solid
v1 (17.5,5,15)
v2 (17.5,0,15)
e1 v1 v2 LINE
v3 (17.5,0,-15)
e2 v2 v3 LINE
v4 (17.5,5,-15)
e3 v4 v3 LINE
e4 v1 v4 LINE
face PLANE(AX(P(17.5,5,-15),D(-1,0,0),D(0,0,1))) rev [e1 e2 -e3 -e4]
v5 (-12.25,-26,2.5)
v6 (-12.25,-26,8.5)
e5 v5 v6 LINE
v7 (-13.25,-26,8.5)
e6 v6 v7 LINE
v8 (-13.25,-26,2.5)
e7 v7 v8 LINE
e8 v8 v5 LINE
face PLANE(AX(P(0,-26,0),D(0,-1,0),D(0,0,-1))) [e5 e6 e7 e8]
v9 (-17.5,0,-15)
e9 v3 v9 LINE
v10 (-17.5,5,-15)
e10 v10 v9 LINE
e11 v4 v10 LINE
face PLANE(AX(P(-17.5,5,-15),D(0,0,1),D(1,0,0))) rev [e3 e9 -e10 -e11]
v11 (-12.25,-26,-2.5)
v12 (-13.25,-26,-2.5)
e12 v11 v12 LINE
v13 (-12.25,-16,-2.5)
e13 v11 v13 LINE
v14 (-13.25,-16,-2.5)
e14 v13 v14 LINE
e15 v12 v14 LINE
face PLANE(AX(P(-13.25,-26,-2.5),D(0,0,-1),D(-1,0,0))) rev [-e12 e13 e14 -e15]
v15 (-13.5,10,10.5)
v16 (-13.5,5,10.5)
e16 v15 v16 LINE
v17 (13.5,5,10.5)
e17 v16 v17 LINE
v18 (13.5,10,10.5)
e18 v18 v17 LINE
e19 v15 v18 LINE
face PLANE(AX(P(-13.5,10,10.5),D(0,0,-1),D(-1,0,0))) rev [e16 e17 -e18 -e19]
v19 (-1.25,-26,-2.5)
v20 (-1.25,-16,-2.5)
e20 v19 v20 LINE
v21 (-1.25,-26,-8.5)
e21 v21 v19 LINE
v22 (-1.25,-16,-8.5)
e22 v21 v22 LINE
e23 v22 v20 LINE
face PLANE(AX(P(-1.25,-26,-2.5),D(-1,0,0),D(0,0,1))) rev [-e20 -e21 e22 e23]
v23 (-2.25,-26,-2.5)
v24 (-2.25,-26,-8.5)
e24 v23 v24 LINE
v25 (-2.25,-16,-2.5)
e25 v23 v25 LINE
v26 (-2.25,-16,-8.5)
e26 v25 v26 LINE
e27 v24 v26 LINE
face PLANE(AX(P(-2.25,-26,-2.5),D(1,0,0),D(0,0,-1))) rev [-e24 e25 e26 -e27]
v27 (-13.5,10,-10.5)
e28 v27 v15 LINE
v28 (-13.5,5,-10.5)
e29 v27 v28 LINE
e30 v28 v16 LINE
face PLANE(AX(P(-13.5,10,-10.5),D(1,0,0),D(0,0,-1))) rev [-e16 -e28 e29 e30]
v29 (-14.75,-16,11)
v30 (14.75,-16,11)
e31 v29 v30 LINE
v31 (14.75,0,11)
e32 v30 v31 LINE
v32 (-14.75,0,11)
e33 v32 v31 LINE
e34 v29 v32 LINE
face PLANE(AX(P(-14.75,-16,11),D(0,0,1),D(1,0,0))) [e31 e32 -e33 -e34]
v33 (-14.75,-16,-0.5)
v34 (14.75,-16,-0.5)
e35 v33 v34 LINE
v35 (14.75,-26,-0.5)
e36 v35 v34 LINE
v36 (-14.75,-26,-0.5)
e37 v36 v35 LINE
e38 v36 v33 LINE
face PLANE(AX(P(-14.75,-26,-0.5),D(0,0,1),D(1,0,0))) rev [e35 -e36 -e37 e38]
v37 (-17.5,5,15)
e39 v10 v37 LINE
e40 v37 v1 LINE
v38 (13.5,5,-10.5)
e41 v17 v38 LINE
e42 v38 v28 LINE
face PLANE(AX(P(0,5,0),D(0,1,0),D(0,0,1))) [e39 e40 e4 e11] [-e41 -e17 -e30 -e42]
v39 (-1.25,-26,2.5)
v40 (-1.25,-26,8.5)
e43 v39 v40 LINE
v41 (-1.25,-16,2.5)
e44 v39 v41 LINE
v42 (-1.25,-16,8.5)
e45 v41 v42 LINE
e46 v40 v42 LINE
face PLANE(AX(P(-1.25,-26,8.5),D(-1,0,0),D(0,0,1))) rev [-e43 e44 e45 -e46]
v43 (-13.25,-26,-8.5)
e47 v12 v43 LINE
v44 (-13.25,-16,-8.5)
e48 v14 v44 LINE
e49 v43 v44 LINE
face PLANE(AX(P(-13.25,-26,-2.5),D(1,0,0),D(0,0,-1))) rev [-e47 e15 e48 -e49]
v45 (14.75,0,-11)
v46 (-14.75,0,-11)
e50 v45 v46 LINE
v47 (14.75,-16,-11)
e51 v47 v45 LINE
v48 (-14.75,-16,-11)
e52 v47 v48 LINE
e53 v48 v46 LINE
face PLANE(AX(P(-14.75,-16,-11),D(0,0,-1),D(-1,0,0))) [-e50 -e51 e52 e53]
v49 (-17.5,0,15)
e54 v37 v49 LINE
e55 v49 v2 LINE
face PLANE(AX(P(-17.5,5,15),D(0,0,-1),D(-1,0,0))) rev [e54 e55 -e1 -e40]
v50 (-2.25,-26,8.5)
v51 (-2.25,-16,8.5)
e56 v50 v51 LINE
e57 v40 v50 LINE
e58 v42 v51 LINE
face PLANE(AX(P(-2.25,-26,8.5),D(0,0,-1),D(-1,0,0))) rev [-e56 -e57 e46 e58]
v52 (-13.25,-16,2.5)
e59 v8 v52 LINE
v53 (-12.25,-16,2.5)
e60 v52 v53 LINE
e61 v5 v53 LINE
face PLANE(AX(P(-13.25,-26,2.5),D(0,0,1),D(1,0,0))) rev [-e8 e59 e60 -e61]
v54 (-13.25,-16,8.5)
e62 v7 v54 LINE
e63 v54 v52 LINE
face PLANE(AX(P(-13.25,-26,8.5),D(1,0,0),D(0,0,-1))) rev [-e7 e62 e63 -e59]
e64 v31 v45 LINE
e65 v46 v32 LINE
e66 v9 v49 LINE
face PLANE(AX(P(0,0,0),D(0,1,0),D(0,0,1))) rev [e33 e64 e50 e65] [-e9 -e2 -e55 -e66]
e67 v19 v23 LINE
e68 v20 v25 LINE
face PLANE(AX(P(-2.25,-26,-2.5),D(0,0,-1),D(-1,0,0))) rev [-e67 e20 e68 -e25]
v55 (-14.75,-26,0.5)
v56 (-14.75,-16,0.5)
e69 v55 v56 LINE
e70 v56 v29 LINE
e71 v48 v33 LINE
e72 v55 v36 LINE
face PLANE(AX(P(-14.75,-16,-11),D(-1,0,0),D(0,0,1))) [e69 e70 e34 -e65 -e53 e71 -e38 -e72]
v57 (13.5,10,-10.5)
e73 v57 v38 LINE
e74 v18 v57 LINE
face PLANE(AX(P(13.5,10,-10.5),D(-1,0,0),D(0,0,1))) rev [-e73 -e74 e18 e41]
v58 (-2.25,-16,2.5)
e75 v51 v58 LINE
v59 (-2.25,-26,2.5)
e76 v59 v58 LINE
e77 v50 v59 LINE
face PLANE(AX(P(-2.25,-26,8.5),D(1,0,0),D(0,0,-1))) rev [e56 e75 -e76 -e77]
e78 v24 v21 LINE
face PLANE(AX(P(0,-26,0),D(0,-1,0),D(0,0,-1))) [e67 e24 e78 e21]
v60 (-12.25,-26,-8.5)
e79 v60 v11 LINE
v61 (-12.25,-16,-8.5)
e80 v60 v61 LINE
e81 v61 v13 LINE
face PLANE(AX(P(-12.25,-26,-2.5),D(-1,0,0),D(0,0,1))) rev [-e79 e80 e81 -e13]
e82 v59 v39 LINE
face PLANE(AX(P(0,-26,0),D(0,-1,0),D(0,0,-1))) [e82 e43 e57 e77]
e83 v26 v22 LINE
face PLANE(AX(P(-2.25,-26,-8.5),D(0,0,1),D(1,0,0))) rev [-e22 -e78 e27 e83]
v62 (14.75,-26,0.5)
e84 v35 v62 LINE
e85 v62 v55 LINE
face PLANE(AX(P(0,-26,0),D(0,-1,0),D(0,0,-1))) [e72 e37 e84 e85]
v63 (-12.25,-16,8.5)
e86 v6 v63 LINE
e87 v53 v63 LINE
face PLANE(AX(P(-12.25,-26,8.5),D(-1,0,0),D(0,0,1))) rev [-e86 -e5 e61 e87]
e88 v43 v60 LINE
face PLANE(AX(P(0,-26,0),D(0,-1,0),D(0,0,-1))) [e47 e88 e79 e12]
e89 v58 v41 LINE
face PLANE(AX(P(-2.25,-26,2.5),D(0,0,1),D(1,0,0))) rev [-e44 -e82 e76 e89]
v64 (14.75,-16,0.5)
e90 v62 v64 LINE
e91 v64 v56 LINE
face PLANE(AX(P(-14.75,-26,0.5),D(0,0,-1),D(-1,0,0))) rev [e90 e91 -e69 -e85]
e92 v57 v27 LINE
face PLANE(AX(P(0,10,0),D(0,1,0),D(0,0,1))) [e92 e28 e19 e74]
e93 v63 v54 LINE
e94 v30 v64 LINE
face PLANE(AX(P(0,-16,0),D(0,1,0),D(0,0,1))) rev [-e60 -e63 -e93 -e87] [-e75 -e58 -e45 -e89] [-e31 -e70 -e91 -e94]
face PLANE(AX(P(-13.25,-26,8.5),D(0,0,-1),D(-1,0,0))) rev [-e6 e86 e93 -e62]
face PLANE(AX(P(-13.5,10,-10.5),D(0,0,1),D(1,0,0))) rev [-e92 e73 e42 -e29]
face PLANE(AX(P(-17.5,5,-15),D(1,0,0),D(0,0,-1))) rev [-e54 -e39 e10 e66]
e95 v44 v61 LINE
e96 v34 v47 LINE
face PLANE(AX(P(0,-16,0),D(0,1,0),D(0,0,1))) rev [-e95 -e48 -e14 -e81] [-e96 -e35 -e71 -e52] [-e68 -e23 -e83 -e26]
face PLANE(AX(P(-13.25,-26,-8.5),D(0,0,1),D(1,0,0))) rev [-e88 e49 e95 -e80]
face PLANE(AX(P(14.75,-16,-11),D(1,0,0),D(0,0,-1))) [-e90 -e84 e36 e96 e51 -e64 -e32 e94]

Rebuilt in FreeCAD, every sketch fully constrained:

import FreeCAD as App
import Part
import Sketcher

V = App.Vector


def add_polygon(sketch, points):
    """Adds a closed chain of lines whose ends are joined by coincident constraints."""
    first, n = sketch.GeometryCount, len(points)
    for a, b in zip(points, points[1:] + points[:1]):
        sketch.addGeometry(Part.LineSegment(App.Vector(*a, 0), App.Vector(*b, 0)), False)
    for i in range(n):
        sketch.addConstraint(Sketcher.Constraint("Coincident", first + i, 2, first + (i + 1) % n, 1))

doc = App.newDocument("Part")
params = doc.addObject("Spreadsheet::Sheet", "Params")
for row, (alias, value) in enumerate([
    ("sketch1_height", "22 mm"),
    ("sketch1_width", "29.5 mm"),
    ("pad1_length", "16 mm"),
    ("sketch2_width", "35 mm"),
    ("sketch2_height", "30 mm"),
    ("pad2_length", "5 mm"),
    ("sketch3_width", "27 mm"),
    ("sketch3_height", "21 mm"),
    ("pad3_length", "5 mm"),
    ("sketch4_width", "1 mm"),
    ("sketch4_height", "6 mm"),
    ("sketch4_width2", "29.5 mm"),
    ("pad4_length", "10 mm"),
], start=1):
    params.set(f"A{row}", alias)
    params.set(f"B{row}", "=" + value)
    params.setAlias(f"B{row}", alias)

body = doc.addObject("PartDesign::Body", "Body")

sketch1 = body.newObject("Sketcher::SketchObject", "Sketch")
sketch1.AttachmentSupport = (doc.getObject("XZ_Plane"), [""])
sketch1.MapMode = "FlatFace"
add_polygon(sketch1, [(-14.75, -11), (-14.75, 11), (14.75, 11), (14.75, -11)])
sketch1.addConstraint([
    Sketcher.Constraint("Vertical", 0),
    Sketcher.Constraint("Horizontal", 1),
    Sketcher.Constraint("Vertical", 2),
    Sketcher.Constraint("Horizontal", 3),
    Sketcher.Constraint("Symmetric", 0, 2, 2, 2, -1, 1),
    Sketcher.Constraint("DistanceY", 0, 1, 0, 2, 22.0),
    Sketcher.Constraint("DistanceX", 1, 1, 1, 2, 29.5),
])
sketch1.setExpression("Constraints[9]", "Params.sketch1_height")
sketch1.setExpression("Constraints[10]", "Params.sketch1_width")
pad1 = body.newObject("PartDesign::Pad", "Pad")
pad1.Profile = sketch1
pad1.setExpression("Length", "Params.pad1_length")

sketch2 = body.newObject("Sketcher::SketchObject", "Sketch001")
sketch2.AttachmentSupport = (doc.getObject("XZ_Plane"), [""])
sketch2.MapMode = "FlatFace"
add_polygon(sketch2, [(-17.5, -15), (-17.5, 15), (17.5, 15), (17.5, -15)])
sketch2.addConstraint([
    Sketcher.Constraint("Vertical", 0),
    Sketcher.Constraint("Horizontal", 1),
    Sketcher.Constraint("Vertical", 2),
    Sketcher.Constraint("Horizontal", 3),
    Sketcher.Constraint("Symmetric", 0, 2, 2, 2, -1, 1),
    Sketcher.Constraint("DistanceX", 1, 1, 1, 2, 35.0),
    Sketcher.Constraint("DistanceY", 0, 1, 0, 2, 30.0),
])
sketch2.setExpression("Constraints[9]", "Params.sketch2_width")
sketch2.setExpression("Constraints[10]", "Params.sketch2_height")
pad2 = body.newObject("PartDesign::Pad", "Pad001")
pad2.Profile = sketch2
pad2.setExpression("Length", "Params.pad2_length")
pad2.Reversed = True

sketch3 = body.newObject("Sketcher::SketchObject", "Sketch002")
sketch3.AttachmentSupport = (doc.getObject("XZ_Plane"), [""])
sketch3.MapMode = "FlatFace"
sketch3.AttachmentOffset = App.Placement(V(0, 0, -5), App.Rotation())
add_polygon(sketch3, [(-13.5, -10.5), (-13.5, 10.5), (13.5, 10.5), (13.5, -10.5)])
sketch3.addConstraint([
    Sketcher.Constraint("Vertical", 0),
    Sketcher.Constraint("Horizontal", 1),
    Sketcher.Constraint("Vertical", 2),
    Sketcher.Constraint("Horizontal", 3),
    Sketcher.Constraint("Symmetric", 0, 2, 2, 2, -1, 1),
    Sketcher.Constraint("DistanceX", 1, 1, 1, 2, 27.0),
    Sketcher.Constraint("DistanceY", 0, 1, 0, 2, 21.0),
])
sketch3.setExpression("Constraints[9]", "Params.sketch3_width")
sketch3.setExpression("Constraints[10]", "Params.sketch3_height")
pad3 = body.newObject("PartDesign::Pad", "Pad002")
pad3.Profile = sketch3
pad3.setExpression("Length", "Params.pad3_length")
pad3.Reversed = True

sketch4 = body.newObject("Sketcher::SketchObject", "Sketch003")
sketch4.AttachmentSupport = (doc.getObject("XZ_Plane"), [""])
sketch4.MapMode = "FlatFace"
sketch4.AttachmentOffset = App.Placement(V(0, 0, 16), App.Rotation())
add_polygon(sketch4, [(-14.75, 0.5), (-14.75, -0.5), (14.75, -0.5), (14.75, 0.5)])
add_polygon(sketch4, [(-13.25, 8.5), (-13.25, 2.5), (-12.25, 2.5), (-12.25, 8.5)])
add_polygon(sketch4, [(-2.25, 8.5), (-2.25, 2.5), (-1.25, 2.5), (-1.25, 8.5)])
add_polygon(sketch4, [(-13.25, -2.5), (-13.25, -8.5), (-12.25, -8.5), (-12.25, -2.5)])
add_polygon(sketch4, [(-2.25, -2.5), (-2.25, -8.5), (-1.25, -8.5), (-1.25, -2.5)])
sketch4.addConstraint([
    Sketcher.Constraint("Vertical", 0),
    Sketcher.Constraint("Horizontal", 1),
    Sketcher.Constraint("Vertical", 2),
    Sketcher.Constraint("Horizontal", 3),
    Sketcher.Constraint("Vertical", 4),
    Sketcher.Constraint("Horizontal", 5),
    Sketcher.Constraint("Vertical", 6),
    Sketcher.Constraint("Horizontal", 7),
    Sketcher.Constraint("Vertical", 8),
    Sketcher.Constraint("Horizontal", 9),
    Sketcher.Constraint("Vertical", 10),
    Sketcher.Constraint("Horizontal", 11),
    Sketcher.Constraint("Vertical", 12),
    Sketcher.Constraint("Horizontal", 13),
    Sketcher.Constraint("Vertical", 14),
    Sketcher.Constraint("Horizontal", 15),
    Sketcher.Constraint("Vertical", 16),
    Sketcher.Constraint("Horizontal", 17),
    Sketcher.Constraint("Vertical", 18),
    Sketcher.Constraint("Horizontal", 19),
    Sketcher.Constraint("Symmetric", 0, 2, 2, 2, -1, 1),
    Sketcher.Constraint("Symmetric", 7, 2, 12, 2, -1),
    Sketcher.Constraint("Symmetric", 5, 2, 14, 2, -1),
    Sketcher.Constraint("Symmetric", 11, 2, 16, 2, -1),
    Sketcher.Constraint("Symmetric", 9, 2, 18, 2, -1),
    Sketcher.Constraint("Horizontal", 5, 2, 8, 2),
    Sketcher.Constraint("Horizontal", 7, 2, 10, 2),
    Sketcher.Constraint("Equal", 7, 9),
    Sketcher.Constraint("Equal", 19, 0),
    Sketcher.Constraint("DistanceX", 5, 1, 5, 2, 1.0),
    Sketcher.Constraint("DistanceY", 4, 2, 4, 1, 6.0),
    Sketcher.Constraint("DistanceX", 1, 1, 1, 2, 29.5),
    Sketcher.Constraint("DistanceY", 3, 2, 4, 2, 2.0),
    Sketcher.Constraint("DistanceX", 4, 2, 2, 2, 28.0),
    Sketcher.Constraint("DistanceX", 5, 2, 8, 2, 10.0),
])
sketch4.setExpression("Constraints[49]", "Params.sketch4_width")
sketch4.setExpression("Constraints[50]", "Params.sketch4_height")
sketch4.setExpression("Constraints[51]", "Params.sketch4_width2")
pad4 = body.newObject("PartDesign::Pad", "Pad003")
pad4.Profile = sketch4
pad4.setExpression("Length", "Params.pad4_length")

doc.recompute()
